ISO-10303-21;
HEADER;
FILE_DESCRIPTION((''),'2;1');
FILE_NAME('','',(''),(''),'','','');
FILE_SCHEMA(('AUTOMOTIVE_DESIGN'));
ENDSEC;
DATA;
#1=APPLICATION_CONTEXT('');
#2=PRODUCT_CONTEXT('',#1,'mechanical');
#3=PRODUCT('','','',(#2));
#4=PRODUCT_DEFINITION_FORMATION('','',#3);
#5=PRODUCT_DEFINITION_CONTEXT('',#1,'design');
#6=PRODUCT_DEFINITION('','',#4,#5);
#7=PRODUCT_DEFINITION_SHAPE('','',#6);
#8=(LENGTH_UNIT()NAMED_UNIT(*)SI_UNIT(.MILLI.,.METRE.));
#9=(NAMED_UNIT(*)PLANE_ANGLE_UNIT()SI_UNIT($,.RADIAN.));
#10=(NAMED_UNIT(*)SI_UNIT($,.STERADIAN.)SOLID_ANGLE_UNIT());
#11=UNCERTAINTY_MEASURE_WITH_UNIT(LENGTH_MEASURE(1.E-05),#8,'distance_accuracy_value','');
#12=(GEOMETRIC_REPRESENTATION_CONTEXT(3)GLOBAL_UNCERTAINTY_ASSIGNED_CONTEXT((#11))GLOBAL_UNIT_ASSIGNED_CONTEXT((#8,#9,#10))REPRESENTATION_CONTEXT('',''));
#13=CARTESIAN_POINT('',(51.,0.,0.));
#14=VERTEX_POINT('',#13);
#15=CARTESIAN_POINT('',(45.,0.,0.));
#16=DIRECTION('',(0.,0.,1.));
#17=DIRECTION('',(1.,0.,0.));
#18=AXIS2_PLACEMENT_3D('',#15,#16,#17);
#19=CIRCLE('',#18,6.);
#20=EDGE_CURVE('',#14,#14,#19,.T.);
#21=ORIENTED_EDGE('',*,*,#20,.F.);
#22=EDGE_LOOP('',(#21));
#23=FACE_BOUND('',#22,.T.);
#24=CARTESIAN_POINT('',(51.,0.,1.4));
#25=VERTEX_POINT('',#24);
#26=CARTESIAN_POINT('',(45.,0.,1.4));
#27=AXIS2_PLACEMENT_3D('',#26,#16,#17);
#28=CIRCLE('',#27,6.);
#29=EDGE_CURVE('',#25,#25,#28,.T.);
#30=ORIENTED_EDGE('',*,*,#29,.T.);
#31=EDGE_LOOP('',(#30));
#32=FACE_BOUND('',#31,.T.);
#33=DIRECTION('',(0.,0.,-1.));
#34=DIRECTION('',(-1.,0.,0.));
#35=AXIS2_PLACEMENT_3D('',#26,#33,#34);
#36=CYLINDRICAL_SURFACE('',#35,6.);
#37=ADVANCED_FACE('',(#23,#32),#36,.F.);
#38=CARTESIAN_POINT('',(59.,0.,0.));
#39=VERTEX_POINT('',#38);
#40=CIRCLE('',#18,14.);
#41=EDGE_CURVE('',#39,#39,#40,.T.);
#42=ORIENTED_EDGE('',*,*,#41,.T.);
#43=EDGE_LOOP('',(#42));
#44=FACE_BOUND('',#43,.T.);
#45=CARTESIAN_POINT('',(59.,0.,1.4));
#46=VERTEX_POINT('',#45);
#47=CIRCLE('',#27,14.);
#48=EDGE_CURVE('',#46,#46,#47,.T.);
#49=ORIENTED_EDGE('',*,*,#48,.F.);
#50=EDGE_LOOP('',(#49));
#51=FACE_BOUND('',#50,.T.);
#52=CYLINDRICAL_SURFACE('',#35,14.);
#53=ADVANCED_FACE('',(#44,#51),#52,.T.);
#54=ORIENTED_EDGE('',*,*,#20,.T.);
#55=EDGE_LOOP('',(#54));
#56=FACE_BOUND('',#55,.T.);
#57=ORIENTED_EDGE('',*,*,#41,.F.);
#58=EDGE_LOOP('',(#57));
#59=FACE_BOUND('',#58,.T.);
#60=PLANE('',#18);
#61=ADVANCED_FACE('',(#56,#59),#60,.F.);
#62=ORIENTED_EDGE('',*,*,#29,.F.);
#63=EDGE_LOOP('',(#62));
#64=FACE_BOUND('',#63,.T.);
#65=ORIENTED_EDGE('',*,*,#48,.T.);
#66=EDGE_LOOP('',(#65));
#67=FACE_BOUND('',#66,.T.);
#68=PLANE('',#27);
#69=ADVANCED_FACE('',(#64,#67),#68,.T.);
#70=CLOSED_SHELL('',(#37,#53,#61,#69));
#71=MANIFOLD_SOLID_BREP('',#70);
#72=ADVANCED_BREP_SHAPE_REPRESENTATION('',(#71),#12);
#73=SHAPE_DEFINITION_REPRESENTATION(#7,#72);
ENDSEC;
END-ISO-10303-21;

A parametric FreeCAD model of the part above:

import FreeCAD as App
import Part
import Sketcher

V = App.Vector
Q = App.Units.Quantity

doc = App.newDocument("Part")
body = doc.addObject("PartDesign::Body", "Body")

sketch1 = doc.addObject("Sketcher::SketchObject", "Sketch")
body.addObject(sketch1)
sketch1.AttachmentSupport = (doc.XY_Plane, [""])
sketch1.MapMode = "FlatFace"
sketch1.addGeometry(Part.Circle(V(45, 0, 0), V(0, 0, 1), 14), False)
sketch1.addGeometry(Part.Circle(V(45, 0, 0), V(0, 0, 1), 6), False)
sketch1.addConstraint(Sketcher.Constraint("Coincident", 1, 3, 0, 3))
sketch1.addConstraint(Sketcher.Constraint("PointOnObject", 0, 3, -1))
sketch1.addConstraint(Sketcher.Constraint("Diameter", 0, Q("28 mm")))
sketch1.addConstraint(Sketcher.Constraint("Diameter", 1, Q("12 mm")))
sketch1.addConstraint(Sketcher.Constraint("DistanceX", -1, 1, 0, 3, Q("45 mm")))
pad1 = doc.addObject("PartDesign::Pad", "Pad")
body.addObject(pad1)
pad1.Profile = sketch1
pad1.Length = 1.4

doc.recompute()
